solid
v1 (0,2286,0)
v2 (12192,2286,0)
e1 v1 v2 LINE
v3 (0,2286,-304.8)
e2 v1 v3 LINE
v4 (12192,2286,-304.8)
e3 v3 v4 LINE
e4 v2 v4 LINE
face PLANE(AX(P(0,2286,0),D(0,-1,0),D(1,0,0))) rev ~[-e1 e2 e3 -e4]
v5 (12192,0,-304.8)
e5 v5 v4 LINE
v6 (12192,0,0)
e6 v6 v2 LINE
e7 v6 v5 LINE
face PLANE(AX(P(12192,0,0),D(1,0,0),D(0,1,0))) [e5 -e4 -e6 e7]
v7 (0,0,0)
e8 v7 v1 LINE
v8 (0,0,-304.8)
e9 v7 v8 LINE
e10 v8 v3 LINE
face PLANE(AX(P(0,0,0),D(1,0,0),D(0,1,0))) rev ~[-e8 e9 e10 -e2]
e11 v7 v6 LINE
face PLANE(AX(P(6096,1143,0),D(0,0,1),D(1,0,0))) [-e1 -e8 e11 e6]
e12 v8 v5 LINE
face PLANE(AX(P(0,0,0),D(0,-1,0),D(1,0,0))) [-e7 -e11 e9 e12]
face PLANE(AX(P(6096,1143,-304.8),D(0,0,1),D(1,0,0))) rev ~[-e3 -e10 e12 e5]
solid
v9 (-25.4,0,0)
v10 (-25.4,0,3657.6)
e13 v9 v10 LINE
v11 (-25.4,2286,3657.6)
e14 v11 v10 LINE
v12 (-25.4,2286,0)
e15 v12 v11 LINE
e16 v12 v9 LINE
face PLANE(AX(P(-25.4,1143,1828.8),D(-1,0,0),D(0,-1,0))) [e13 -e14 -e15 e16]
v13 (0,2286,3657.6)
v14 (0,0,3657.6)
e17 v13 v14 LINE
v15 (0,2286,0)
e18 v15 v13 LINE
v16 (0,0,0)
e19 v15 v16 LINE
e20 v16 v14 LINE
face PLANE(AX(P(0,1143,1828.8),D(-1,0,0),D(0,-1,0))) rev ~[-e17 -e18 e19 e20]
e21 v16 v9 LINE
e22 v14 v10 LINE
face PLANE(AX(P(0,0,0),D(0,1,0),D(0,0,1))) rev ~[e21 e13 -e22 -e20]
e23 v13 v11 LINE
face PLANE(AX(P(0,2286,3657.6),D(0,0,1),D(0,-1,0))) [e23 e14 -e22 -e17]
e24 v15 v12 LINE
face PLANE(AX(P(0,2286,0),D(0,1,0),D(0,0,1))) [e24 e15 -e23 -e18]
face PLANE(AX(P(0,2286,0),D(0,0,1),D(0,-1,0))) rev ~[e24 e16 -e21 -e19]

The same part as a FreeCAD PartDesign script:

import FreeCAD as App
import Part
import Sketcher
Q = App.Units.Quantity

doc = App.newDocument("Part")
body = doc.addObject("PartDesign::Body", "Body")

# Sketch on XY plane
sketch1 = doc.addObject("Sketcher::SketchObject", "Sketch")
body.addObject(sketch1)
sketch1.AttachmentSupport = (doc.XY_Plane, [""])
sketch1.MapMode = "FlatFace"
sketch1.addGeometry(Part.LineSegment(App.Vector(0, 2286, 0), App.Vector(0, 0, 0)), False)
sketch1.addGeometry(Part.LineSegment(App.Vector(0, 0, 0), App.Vector(12192, 0, 0)), False)
sketch1.addGeometry(Part.LineSegment(App.Vector(12192, 0, 0), App.Vector(12192, 2286, 0)), False)
sketch1.addGeometry(Part.LineSegment(App.Vector(12192, 2286, 0), App.Vector(0, 2286, 0)), False)
sketch1.addConstraint(Sketcher.Constraint("Coincident", 0, 2, 1, 1))
sketch1.addConstraint(Sketcher.Constraint("Coincident", 1, 2, 2, 1))
sketch1.addConstraint(Sketcher.Constraint("Coincident", 2, 2, 3, 1))
sketch1.addConstraint(Sketcher.Constraint("Coincident", 3, 2, 0, 1))
sketch1.addConstraint(Sketcher.Constraint("Vertical", 0))
sketch1.addConstraint(Sketcher.Constraint("Horizontal", 1))
sketch1.addConstraint(Sketcher.Constraint("Vertical", 2))
sketch1.addConstraint(Sketcher.Constraint("Horizontal", 3))
sketch1.addConstraint(Sketcher.Constraint("Coincident", 0, 2, -1, 1))
sketch1.addConstraint(Sketcher.Constraint("DistanceX", 1, 1, 1, 2, Q("480 in")))
sketch1.addConstraint(Sketcher.Constraint("DistanceY", 0, 2, 0, 1, Q("90 in")))
pad1 = doc.addObject("PartDesign::Pad", "Pad")
body.addObject(pad1)
pad1.Profile = sketch1
pad1.Length = Q("12 in")
pad1.Reversed = True
body2 = doc.addObject("PartDesign::Body", "Body001")

# Sketch on YZ plane
sketch2 = doc.addObject("Sketcher::SketchObject", "Sketch001")
body2.addObject(sketch2)
sketch2.AttachmentSupport = (doc.getObject("YZ_Plane001"), [""])
sketch2.MapMode = "FlatFace"
sketch2.addGeometry(Part.LineSegment(App.Vector(2286, 3658, 0), App.Vector(2286, 0, 0)), False)
sketch2.addGeometry(Part.LineSegment(App.Vector(2286, 0, 0), App.Vector(0, 0, 0)), False)
sketch2.addGeometry(Part.LineSegment(App.Vector(0, 0, 0), App.Vector(0, 3658, 0)), False)
sketch2.addGeometry(Part.LineSegment(App.Vector(0, 3658, 0), App.Vector(2286, 3658, 0)), False)
sketch2.addConstraint(Sketcher.Constraint("Coincident", 0, 2, 1, 1))
sketch2.addConstraint(Sketcher.Constraint("Coincident", 1, 2, 2, 1))
sketch2.addConstraint(Sketcher.Constraint("Coincident", 2, 2, 3, 1))
sketch2.addConstraint(Sketcher.Constraint("Coincident", 3, 2, 0, 1))
sketch2.addConstraint(Sketcher.Constraint("Vertical", 0))
sketch2.addConstraint(Sketcher.Constraint("Horizontal", 1))
sketch2.addConstraint(Sketcher.Constraint("Vertical", 2))
sketch2.addConstraint(Sketcher.Constraint("Horizontal", 3))
sketch2.addConstraint(Sketcher.Constraint("Coincident", 1, 2, -1, 1))
sketch2.addConstraint(Sketcher.Constraint("DistanceX", 1, 2, 1, 1, Q("90 in")))
sketch2.addConstraint(Sketcher.Constraint("DistanceY", 0, 2, 0, 1, Q("144 in")))
pad2 = doc.addObject("PartDesign::Pad", "Pad001")
body2.addObject(pad2)
pad2.Profile = sketch2
pad2.Length = Q("1 in")
pad2.Reversed = True

doc.recompute()
